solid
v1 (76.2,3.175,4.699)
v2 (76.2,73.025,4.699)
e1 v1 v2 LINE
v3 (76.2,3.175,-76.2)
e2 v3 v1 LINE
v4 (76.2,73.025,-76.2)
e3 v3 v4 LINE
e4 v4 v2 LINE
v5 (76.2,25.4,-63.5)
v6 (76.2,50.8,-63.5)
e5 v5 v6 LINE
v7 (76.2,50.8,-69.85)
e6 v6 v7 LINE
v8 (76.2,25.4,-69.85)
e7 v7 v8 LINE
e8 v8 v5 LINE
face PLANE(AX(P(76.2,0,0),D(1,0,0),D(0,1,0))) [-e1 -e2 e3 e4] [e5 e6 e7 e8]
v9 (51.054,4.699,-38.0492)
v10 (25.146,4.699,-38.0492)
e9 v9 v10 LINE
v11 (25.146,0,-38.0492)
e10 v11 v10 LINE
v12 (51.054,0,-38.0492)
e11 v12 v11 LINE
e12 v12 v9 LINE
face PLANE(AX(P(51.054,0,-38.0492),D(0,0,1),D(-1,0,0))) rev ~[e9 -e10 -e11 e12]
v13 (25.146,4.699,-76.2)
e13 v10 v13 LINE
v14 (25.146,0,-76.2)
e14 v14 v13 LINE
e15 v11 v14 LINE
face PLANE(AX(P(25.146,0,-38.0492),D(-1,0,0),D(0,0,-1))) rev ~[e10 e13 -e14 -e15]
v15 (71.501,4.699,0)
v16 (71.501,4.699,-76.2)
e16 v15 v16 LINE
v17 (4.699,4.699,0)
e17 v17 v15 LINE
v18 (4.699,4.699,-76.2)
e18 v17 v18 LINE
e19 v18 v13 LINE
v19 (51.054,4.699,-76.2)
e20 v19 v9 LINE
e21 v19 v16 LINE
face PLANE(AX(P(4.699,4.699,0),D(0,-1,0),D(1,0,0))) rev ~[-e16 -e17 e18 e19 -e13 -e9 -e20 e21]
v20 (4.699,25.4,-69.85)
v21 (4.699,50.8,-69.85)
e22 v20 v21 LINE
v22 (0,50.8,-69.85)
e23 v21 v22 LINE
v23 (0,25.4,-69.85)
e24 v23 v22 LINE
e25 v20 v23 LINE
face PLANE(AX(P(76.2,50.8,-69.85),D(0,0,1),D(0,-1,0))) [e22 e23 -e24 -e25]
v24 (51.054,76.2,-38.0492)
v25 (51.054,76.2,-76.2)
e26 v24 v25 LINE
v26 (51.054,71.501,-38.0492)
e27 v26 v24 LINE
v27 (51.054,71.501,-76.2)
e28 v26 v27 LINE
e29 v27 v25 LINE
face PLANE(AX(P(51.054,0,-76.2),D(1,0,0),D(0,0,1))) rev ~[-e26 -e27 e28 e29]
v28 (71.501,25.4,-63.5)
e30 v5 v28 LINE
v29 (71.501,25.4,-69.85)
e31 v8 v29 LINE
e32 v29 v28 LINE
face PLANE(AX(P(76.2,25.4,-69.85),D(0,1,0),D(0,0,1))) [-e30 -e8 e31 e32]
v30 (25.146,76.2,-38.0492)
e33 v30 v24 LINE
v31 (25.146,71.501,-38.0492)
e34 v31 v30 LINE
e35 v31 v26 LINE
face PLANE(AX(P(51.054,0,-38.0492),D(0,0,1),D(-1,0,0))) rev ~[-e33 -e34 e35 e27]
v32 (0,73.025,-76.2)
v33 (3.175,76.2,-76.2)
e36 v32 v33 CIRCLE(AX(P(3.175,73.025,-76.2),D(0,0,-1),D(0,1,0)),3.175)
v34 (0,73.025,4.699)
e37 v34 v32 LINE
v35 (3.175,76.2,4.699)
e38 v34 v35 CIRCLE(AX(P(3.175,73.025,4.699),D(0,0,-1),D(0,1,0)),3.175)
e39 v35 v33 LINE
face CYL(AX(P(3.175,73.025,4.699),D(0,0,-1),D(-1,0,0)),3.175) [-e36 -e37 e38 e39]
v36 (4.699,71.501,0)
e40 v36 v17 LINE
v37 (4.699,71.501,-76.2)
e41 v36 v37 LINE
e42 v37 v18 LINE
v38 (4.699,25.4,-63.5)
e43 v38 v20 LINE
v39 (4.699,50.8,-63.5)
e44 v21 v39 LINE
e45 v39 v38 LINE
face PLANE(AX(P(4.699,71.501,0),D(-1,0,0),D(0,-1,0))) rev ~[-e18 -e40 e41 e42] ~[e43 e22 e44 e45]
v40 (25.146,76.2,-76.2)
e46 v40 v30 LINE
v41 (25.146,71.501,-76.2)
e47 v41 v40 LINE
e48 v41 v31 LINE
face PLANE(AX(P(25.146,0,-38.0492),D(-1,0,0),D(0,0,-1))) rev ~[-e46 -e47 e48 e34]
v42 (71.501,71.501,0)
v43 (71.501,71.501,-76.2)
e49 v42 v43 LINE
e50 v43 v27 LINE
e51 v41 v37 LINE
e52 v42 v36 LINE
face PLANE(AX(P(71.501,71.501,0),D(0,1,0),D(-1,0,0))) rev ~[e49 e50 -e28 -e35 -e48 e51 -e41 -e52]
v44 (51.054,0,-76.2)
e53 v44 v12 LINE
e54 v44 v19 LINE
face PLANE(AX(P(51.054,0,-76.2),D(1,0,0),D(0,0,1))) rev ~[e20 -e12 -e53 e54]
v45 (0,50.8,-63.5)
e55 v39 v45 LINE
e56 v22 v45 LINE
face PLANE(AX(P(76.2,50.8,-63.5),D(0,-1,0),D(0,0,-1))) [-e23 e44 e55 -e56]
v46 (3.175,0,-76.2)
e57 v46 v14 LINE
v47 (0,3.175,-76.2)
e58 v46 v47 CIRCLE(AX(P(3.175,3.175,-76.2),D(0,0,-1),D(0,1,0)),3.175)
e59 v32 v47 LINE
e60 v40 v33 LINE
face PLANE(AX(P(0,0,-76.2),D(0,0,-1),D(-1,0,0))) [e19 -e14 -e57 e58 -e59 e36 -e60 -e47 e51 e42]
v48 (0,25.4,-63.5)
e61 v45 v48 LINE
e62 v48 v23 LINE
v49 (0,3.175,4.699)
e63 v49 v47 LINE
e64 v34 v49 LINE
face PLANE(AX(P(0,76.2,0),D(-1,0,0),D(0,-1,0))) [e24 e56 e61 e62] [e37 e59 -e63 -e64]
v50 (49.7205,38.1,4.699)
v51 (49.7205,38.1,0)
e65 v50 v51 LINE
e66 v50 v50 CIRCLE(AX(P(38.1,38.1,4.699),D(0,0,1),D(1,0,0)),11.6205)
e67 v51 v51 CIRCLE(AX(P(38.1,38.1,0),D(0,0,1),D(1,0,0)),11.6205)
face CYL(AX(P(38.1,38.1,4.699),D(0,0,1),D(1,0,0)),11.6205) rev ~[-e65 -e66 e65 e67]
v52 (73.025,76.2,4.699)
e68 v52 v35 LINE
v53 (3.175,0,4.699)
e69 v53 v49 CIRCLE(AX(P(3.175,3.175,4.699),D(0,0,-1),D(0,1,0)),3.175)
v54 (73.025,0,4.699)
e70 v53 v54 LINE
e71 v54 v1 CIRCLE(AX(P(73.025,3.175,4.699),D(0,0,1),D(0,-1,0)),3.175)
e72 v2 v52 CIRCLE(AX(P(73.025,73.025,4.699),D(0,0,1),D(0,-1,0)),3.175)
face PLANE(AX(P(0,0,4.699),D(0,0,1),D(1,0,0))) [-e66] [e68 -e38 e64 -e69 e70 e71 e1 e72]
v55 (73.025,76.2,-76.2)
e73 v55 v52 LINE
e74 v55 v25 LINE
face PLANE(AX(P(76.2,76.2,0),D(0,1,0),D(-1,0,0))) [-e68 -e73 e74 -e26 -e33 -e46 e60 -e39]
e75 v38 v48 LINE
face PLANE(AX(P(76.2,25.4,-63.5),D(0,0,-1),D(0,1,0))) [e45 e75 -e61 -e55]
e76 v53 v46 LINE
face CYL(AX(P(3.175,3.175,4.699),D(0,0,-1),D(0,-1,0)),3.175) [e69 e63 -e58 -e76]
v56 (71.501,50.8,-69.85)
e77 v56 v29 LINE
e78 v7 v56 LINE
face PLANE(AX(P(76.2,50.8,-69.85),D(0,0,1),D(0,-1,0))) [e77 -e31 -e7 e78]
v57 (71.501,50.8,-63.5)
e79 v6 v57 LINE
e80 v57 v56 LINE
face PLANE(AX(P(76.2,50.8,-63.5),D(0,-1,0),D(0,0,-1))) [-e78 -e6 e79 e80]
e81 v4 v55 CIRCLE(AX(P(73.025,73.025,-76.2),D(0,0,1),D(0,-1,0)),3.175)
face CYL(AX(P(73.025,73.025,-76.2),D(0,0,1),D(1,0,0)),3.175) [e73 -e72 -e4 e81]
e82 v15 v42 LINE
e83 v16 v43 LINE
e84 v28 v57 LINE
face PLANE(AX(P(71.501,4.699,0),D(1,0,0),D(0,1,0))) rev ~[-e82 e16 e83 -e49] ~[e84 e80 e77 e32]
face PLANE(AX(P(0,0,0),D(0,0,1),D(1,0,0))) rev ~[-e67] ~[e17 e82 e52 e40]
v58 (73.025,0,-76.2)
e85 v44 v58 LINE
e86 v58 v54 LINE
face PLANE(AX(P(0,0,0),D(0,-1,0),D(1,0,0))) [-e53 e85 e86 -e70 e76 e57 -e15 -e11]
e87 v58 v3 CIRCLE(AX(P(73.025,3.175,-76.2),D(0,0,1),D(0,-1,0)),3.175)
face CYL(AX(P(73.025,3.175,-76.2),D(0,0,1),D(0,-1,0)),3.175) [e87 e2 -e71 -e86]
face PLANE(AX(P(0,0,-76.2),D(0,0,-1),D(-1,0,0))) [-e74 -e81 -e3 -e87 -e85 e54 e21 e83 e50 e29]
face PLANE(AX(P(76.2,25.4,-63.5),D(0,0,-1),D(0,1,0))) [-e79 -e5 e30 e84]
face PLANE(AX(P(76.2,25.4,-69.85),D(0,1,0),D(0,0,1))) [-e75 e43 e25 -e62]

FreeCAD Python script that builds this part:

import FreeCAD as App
import Part
import Sketcher
Q = App.Units.Quantity


def edges_at(feature, points):
    """Names of the edges that pass closest to the given points."""
    edges = feature.Shape.Edges
    near = lambda p: min(range(len(edges)), key=lambda i: edges[i].distToShape(Part.Vertex(*p))[0])
    return sorted({f"Edge{near(p) + 1}" for p in points})


def add_polygon(sketch, points):
    """Adds a closed chain of lines whose ends are joined by coincident constraints."""
    first, n = sketch.GeometryCount, len(points)
    for a, b in zip(points, points[1:] + points[:1]):
        sketch.addGeometry(Part.LineSegment(App.Vector(*a, 0), App.Vector(*b, 0)), False)
    for i in range(n):
        sketch.addConstraint(Sketcher.Constraint("Coincident", first + i, 2, first + (i + 1) % n, 1))

doc = App.newDocument("Part")
params = doc.addObject("Spreadsheet::Sheet", "Params")
for row, (alias, value) in enumerate([
    ("sketch1_width", "3 in"),
    ("pad1_length", "0.185 in"),
    ("sketch2_diameter", "0.915 in"),
    ("pocket1_length", "0.185 in"),
    ("sketch3_width", "3 in"),
    ("pad2_length", "3 in"),
    ("sketch4_width", "1.02 in"),
    ("sketch4_height", "1.502 in"),
    ("sketch5_width", "1 in"),
    ("sketch5_height", "0.25 in"),
    ("fillet_radius", "0.125 in"),
], start=1):
    params.set(f"A{row}", alias)
    params.set(f"B{row}", "=" + value)
    params.setAlias(f"B{row}", alias)

body = doc.addObject("PartDesign::Body", "Body")

# Sketch on XY plane
sketch1 = body.newObject("Sketcher::SketchObject", "Sketch")
sketch1.AttachmentSupport = (doc.getObject("XY_Plane"), [""])
sketch1.MapMode = "FlatFace"
add_polygon(sketch1, [(0, 76), (0, 0), (76, 0), (76, 76)])  # lines 0-3
sketch1.addConstraint(Sketcher.Constraint("Vertical", 0))
sketch1.addConstraint(Sketcher.Constraint("Horizontal", 1))
sketch1.addConstraint(Sketcher.Constraint("Vertical", 2))
sketch1.addConstraint(Sketcher.Constraint("Horizontal", 3))
sketch1.addConstraint(Sketcher.Constraint("Coincident", 0, 2, -1, 1))
sketch1.addConstraint(Sketcher.Constraint("Equal", 3, 0))
sketch1.addConstraint(Sketcher.Constraint("DistanceX", 1, 1, 1, 2, Q("3 in")))
sketch1.setExpression("Constraints[10]", "Params.sketch1_width")
pad1 = body.newObject("PartDesign::Pad", "Pad")
pad1.Profile = sketch1
pad1.setExpression("Length", "Params.pad1_length")

# Sketch on XY plane
sketch2 = body.newObject("Sketcher::SketchObject", "Sketch001")
sketch2.AttachmentSupport = (doc.getObject("XY_Plane"), [""])
sketch2.MapMode = "FlatFace"
sketch2.AttachmentOffset = App.Placement(App.Vector(0, 0, 0.185 * 25.4), App.Rotation())
sketch2.addGeometry(Part.Circle(App.Vector(38, 38, 0), App.Vector(0, 0, 1), 12), False)
sketch2.addConstraint(Sketcher.Constraint("Diameter", 0, Q("0.915 in")))
sketch2.addConstraint(Sketcher.Constraint("DistanceX", -1, 1, 0, 3, Q("1.5 in")))
sketch2.addConstraint(Sketcher.Constraint("DistanceY", -1, 1, 0, 3, Q("1.5 in")))
sketch2.setExpression("Constraints[0]", "Params.sketch2_diameter")
pocket1 = body.newObject("PartDesign::Pocket", "Pocket")
pocket1.Profile = sketch2
pocket1.setExpression("Length", "Params.pocket1_length")

# Sketch on XY plane
sketch3 = body.newObject("Sketcher::SketchObject", "Sketch002")
sketch3.AttachmentSupport = (doc.getObject("XY_Plane"), [""])
sketch3.MapMode = "FlatFace"
add_polygon(sketch3, [(76, 0), (0, 0), (0, 76), (76, 76)])  # lines 0-3
add_polygon(sketch3, [(5, 72), (5, 5), (72, 5), (72, 72)])  # lines 4-7
sketch3.addConstraint(Sketcher.Constraint("Horizontal", 0))
sketch3.addConstraint(Sketcher.Constraint("Vertical", 1))
sketch3.addConstraint(Sketcher.Constraint("Horizontal", 2))
sketch3.addConstraint(Sketcher.Constraint("Vertical", 3))
sketch3.addConstraint(Sketcher.Constraint("Vertical", 4))
sketch3.addConstraint(Sketcher.Constraint("Horizontal", 5))
sketch3.addConstraint(Sketcher.Constraint("Vertical", 6))
sketch3.addConstraint(Sketcher.Constraint("Horizontal", 7))
sketch3.addConstraint(Sketcher.Constraint("Coincident", 0, 2, -1, 1))
sketch3.addConstraint(Sketcher.Constraint("Equal", 2, 1))
sketch3.addConstraint(Sketcher.Constraint("Equal", 7, 4))
sketch3.addConstraint(Sketcher.Constraint("DistanceX", 0, 2, 0, 1, Q("3 in")))
sketch3.addConstraint(Sketcher.Constraint("DistanceX", -1, 1, 4, 2, Q("0.185 in")))
sketch3.addConstraint(Sketcher.Constraint("DistanceY", -1, 1, 4, 2, Q("0.185 in")))
sketch3.addConstraint(Sketcher.Constraint("DistanceX", 5, 2, 3, 2, Q("0.185 in")))
sketch3.setExpression("Constraints[19]", "Params.sketch3_width")
pad2 = body.newObject("PartDesign::Pad", "Pad001")
pad2.Profile = sketch3
pad2.setExpression("Length", "Params.pad2_length")
pad2.Reversed = True

# Sketch on XZ plane
sketch4 = body.newObject("Sketcher::SketchObject", "Sketch003")
sketch4.AttachmentSupport = (doc.getObject("XZ_Plane"), [""])
sketch4.MapMode = "FlatFace"
add_polygon(sketch4, [(25, -38), (25, -76), (51, -76), (51, -38)])  # lines 0-3
sketch4.addConstraint(Sketcher.Constraint("Vertical", 0))
sketch4.addConstraint(Sketcher.Constraint("Horizontal", 1))
sketch4.addConstraint(Sketcher.Constraint("Vertical", 2))
sketch4.addConstraint(Sketcher.Constraint("Horizontal", 3))
sketch4.addConstraint(Sketcher.Constraint("DistanceX", 1, 1, 1, 2, Q("1.02 in")))
sketch4.addConstraint(Sketcher.Constraint("DistanceY", 0, 2, 0, 1, Q("1.502 in")))
sketch4.addConstraint(Sketcher.Constraint("DistanceX", -1, 1, 0, 2, Q("0.99 in")))
sketch4.addConstraint(Sketcher.Constraint("DistanceY", 0, 2, -1, 1, Q("3 in")))
sketch4.setExpression("Constraints[8]", "Params.sketch4_width")
sketch4.setExpression("Constraints[9]", "Params.sketch4_height")
pocket2 = body.newObject("PartDesign::Pocket", "Pocket001")
pocket2.Profile = sketch4
pocket2.Type = "ThroughAll"

# Sketch on YZ plane
sketch5 = body.newObject("Sketcher::SketchObject", "Sketch004")
sketch5.AttachmentSupport = (doc.getObject("YZ_Plane"), [""])
sketch5.MapMode = "FlatFace"
sketch5.AttachmentOffset = App.Placement(App.Vector(0, 0, 3 * 25.4), App.Rotation())
add_polygon(sketch5, [(25, -64), (25, -70), (51, -70), (51, -64)])  # lines 0-3
sketch5.addConstraint(Sketcher.Constraint("Vertical", 0))
sketch5.addConstraint(Sketcher.Constraint("Horizontal", 1))
sketch5.addConstraint(Sketcher.Constraint("Vertical", 2))
sketch5.addConstraint(Sketcher.Constraint("Horizontal", 3))
sketch5.addConstraint(Sketcher.Constraint("DistanceX", 1, 1, 1, 2, Q("1 in")))
sketch5.addConstraint(Sketcher.Constraint("DistanceX", -1, 1, 0, 2, Q("1 in")))
sketch5.addConstraint(Sketcher.Constraint("DistanceY", 0, 2, 0, 1, Q("0.25 in")))
sketch5.addConstraint(Sketcher.Constraint("DistanceY", 2, 2, -1, 1, Q("2.5 in")))
sketch5.setExpression("Constraints[8]", "Params.sketch5_width")
sketch5.setExpression("Constraints[10]", "Params.sketch5_height")
pocket3 = body.newObject("PartDesign::Pocket", "Pocket002")
pocket3.Profile = sketch5
pocket3.Type = "ThroughAll"
doc.recompute()

fillet = body.newObject("PartDesign::Fillet", "Fillet")
fillet.Base = (pocket3, edges_at(pocket3, [
    (76.2, 76.2, -35.751),
    (0, 76.2, -35.751),
    (76.2, 0, -35.751),
    (0, 0, -35.751),
]))
fillet.setExpression("Radius", "Params.fillet_radius")

doc.recompute()
